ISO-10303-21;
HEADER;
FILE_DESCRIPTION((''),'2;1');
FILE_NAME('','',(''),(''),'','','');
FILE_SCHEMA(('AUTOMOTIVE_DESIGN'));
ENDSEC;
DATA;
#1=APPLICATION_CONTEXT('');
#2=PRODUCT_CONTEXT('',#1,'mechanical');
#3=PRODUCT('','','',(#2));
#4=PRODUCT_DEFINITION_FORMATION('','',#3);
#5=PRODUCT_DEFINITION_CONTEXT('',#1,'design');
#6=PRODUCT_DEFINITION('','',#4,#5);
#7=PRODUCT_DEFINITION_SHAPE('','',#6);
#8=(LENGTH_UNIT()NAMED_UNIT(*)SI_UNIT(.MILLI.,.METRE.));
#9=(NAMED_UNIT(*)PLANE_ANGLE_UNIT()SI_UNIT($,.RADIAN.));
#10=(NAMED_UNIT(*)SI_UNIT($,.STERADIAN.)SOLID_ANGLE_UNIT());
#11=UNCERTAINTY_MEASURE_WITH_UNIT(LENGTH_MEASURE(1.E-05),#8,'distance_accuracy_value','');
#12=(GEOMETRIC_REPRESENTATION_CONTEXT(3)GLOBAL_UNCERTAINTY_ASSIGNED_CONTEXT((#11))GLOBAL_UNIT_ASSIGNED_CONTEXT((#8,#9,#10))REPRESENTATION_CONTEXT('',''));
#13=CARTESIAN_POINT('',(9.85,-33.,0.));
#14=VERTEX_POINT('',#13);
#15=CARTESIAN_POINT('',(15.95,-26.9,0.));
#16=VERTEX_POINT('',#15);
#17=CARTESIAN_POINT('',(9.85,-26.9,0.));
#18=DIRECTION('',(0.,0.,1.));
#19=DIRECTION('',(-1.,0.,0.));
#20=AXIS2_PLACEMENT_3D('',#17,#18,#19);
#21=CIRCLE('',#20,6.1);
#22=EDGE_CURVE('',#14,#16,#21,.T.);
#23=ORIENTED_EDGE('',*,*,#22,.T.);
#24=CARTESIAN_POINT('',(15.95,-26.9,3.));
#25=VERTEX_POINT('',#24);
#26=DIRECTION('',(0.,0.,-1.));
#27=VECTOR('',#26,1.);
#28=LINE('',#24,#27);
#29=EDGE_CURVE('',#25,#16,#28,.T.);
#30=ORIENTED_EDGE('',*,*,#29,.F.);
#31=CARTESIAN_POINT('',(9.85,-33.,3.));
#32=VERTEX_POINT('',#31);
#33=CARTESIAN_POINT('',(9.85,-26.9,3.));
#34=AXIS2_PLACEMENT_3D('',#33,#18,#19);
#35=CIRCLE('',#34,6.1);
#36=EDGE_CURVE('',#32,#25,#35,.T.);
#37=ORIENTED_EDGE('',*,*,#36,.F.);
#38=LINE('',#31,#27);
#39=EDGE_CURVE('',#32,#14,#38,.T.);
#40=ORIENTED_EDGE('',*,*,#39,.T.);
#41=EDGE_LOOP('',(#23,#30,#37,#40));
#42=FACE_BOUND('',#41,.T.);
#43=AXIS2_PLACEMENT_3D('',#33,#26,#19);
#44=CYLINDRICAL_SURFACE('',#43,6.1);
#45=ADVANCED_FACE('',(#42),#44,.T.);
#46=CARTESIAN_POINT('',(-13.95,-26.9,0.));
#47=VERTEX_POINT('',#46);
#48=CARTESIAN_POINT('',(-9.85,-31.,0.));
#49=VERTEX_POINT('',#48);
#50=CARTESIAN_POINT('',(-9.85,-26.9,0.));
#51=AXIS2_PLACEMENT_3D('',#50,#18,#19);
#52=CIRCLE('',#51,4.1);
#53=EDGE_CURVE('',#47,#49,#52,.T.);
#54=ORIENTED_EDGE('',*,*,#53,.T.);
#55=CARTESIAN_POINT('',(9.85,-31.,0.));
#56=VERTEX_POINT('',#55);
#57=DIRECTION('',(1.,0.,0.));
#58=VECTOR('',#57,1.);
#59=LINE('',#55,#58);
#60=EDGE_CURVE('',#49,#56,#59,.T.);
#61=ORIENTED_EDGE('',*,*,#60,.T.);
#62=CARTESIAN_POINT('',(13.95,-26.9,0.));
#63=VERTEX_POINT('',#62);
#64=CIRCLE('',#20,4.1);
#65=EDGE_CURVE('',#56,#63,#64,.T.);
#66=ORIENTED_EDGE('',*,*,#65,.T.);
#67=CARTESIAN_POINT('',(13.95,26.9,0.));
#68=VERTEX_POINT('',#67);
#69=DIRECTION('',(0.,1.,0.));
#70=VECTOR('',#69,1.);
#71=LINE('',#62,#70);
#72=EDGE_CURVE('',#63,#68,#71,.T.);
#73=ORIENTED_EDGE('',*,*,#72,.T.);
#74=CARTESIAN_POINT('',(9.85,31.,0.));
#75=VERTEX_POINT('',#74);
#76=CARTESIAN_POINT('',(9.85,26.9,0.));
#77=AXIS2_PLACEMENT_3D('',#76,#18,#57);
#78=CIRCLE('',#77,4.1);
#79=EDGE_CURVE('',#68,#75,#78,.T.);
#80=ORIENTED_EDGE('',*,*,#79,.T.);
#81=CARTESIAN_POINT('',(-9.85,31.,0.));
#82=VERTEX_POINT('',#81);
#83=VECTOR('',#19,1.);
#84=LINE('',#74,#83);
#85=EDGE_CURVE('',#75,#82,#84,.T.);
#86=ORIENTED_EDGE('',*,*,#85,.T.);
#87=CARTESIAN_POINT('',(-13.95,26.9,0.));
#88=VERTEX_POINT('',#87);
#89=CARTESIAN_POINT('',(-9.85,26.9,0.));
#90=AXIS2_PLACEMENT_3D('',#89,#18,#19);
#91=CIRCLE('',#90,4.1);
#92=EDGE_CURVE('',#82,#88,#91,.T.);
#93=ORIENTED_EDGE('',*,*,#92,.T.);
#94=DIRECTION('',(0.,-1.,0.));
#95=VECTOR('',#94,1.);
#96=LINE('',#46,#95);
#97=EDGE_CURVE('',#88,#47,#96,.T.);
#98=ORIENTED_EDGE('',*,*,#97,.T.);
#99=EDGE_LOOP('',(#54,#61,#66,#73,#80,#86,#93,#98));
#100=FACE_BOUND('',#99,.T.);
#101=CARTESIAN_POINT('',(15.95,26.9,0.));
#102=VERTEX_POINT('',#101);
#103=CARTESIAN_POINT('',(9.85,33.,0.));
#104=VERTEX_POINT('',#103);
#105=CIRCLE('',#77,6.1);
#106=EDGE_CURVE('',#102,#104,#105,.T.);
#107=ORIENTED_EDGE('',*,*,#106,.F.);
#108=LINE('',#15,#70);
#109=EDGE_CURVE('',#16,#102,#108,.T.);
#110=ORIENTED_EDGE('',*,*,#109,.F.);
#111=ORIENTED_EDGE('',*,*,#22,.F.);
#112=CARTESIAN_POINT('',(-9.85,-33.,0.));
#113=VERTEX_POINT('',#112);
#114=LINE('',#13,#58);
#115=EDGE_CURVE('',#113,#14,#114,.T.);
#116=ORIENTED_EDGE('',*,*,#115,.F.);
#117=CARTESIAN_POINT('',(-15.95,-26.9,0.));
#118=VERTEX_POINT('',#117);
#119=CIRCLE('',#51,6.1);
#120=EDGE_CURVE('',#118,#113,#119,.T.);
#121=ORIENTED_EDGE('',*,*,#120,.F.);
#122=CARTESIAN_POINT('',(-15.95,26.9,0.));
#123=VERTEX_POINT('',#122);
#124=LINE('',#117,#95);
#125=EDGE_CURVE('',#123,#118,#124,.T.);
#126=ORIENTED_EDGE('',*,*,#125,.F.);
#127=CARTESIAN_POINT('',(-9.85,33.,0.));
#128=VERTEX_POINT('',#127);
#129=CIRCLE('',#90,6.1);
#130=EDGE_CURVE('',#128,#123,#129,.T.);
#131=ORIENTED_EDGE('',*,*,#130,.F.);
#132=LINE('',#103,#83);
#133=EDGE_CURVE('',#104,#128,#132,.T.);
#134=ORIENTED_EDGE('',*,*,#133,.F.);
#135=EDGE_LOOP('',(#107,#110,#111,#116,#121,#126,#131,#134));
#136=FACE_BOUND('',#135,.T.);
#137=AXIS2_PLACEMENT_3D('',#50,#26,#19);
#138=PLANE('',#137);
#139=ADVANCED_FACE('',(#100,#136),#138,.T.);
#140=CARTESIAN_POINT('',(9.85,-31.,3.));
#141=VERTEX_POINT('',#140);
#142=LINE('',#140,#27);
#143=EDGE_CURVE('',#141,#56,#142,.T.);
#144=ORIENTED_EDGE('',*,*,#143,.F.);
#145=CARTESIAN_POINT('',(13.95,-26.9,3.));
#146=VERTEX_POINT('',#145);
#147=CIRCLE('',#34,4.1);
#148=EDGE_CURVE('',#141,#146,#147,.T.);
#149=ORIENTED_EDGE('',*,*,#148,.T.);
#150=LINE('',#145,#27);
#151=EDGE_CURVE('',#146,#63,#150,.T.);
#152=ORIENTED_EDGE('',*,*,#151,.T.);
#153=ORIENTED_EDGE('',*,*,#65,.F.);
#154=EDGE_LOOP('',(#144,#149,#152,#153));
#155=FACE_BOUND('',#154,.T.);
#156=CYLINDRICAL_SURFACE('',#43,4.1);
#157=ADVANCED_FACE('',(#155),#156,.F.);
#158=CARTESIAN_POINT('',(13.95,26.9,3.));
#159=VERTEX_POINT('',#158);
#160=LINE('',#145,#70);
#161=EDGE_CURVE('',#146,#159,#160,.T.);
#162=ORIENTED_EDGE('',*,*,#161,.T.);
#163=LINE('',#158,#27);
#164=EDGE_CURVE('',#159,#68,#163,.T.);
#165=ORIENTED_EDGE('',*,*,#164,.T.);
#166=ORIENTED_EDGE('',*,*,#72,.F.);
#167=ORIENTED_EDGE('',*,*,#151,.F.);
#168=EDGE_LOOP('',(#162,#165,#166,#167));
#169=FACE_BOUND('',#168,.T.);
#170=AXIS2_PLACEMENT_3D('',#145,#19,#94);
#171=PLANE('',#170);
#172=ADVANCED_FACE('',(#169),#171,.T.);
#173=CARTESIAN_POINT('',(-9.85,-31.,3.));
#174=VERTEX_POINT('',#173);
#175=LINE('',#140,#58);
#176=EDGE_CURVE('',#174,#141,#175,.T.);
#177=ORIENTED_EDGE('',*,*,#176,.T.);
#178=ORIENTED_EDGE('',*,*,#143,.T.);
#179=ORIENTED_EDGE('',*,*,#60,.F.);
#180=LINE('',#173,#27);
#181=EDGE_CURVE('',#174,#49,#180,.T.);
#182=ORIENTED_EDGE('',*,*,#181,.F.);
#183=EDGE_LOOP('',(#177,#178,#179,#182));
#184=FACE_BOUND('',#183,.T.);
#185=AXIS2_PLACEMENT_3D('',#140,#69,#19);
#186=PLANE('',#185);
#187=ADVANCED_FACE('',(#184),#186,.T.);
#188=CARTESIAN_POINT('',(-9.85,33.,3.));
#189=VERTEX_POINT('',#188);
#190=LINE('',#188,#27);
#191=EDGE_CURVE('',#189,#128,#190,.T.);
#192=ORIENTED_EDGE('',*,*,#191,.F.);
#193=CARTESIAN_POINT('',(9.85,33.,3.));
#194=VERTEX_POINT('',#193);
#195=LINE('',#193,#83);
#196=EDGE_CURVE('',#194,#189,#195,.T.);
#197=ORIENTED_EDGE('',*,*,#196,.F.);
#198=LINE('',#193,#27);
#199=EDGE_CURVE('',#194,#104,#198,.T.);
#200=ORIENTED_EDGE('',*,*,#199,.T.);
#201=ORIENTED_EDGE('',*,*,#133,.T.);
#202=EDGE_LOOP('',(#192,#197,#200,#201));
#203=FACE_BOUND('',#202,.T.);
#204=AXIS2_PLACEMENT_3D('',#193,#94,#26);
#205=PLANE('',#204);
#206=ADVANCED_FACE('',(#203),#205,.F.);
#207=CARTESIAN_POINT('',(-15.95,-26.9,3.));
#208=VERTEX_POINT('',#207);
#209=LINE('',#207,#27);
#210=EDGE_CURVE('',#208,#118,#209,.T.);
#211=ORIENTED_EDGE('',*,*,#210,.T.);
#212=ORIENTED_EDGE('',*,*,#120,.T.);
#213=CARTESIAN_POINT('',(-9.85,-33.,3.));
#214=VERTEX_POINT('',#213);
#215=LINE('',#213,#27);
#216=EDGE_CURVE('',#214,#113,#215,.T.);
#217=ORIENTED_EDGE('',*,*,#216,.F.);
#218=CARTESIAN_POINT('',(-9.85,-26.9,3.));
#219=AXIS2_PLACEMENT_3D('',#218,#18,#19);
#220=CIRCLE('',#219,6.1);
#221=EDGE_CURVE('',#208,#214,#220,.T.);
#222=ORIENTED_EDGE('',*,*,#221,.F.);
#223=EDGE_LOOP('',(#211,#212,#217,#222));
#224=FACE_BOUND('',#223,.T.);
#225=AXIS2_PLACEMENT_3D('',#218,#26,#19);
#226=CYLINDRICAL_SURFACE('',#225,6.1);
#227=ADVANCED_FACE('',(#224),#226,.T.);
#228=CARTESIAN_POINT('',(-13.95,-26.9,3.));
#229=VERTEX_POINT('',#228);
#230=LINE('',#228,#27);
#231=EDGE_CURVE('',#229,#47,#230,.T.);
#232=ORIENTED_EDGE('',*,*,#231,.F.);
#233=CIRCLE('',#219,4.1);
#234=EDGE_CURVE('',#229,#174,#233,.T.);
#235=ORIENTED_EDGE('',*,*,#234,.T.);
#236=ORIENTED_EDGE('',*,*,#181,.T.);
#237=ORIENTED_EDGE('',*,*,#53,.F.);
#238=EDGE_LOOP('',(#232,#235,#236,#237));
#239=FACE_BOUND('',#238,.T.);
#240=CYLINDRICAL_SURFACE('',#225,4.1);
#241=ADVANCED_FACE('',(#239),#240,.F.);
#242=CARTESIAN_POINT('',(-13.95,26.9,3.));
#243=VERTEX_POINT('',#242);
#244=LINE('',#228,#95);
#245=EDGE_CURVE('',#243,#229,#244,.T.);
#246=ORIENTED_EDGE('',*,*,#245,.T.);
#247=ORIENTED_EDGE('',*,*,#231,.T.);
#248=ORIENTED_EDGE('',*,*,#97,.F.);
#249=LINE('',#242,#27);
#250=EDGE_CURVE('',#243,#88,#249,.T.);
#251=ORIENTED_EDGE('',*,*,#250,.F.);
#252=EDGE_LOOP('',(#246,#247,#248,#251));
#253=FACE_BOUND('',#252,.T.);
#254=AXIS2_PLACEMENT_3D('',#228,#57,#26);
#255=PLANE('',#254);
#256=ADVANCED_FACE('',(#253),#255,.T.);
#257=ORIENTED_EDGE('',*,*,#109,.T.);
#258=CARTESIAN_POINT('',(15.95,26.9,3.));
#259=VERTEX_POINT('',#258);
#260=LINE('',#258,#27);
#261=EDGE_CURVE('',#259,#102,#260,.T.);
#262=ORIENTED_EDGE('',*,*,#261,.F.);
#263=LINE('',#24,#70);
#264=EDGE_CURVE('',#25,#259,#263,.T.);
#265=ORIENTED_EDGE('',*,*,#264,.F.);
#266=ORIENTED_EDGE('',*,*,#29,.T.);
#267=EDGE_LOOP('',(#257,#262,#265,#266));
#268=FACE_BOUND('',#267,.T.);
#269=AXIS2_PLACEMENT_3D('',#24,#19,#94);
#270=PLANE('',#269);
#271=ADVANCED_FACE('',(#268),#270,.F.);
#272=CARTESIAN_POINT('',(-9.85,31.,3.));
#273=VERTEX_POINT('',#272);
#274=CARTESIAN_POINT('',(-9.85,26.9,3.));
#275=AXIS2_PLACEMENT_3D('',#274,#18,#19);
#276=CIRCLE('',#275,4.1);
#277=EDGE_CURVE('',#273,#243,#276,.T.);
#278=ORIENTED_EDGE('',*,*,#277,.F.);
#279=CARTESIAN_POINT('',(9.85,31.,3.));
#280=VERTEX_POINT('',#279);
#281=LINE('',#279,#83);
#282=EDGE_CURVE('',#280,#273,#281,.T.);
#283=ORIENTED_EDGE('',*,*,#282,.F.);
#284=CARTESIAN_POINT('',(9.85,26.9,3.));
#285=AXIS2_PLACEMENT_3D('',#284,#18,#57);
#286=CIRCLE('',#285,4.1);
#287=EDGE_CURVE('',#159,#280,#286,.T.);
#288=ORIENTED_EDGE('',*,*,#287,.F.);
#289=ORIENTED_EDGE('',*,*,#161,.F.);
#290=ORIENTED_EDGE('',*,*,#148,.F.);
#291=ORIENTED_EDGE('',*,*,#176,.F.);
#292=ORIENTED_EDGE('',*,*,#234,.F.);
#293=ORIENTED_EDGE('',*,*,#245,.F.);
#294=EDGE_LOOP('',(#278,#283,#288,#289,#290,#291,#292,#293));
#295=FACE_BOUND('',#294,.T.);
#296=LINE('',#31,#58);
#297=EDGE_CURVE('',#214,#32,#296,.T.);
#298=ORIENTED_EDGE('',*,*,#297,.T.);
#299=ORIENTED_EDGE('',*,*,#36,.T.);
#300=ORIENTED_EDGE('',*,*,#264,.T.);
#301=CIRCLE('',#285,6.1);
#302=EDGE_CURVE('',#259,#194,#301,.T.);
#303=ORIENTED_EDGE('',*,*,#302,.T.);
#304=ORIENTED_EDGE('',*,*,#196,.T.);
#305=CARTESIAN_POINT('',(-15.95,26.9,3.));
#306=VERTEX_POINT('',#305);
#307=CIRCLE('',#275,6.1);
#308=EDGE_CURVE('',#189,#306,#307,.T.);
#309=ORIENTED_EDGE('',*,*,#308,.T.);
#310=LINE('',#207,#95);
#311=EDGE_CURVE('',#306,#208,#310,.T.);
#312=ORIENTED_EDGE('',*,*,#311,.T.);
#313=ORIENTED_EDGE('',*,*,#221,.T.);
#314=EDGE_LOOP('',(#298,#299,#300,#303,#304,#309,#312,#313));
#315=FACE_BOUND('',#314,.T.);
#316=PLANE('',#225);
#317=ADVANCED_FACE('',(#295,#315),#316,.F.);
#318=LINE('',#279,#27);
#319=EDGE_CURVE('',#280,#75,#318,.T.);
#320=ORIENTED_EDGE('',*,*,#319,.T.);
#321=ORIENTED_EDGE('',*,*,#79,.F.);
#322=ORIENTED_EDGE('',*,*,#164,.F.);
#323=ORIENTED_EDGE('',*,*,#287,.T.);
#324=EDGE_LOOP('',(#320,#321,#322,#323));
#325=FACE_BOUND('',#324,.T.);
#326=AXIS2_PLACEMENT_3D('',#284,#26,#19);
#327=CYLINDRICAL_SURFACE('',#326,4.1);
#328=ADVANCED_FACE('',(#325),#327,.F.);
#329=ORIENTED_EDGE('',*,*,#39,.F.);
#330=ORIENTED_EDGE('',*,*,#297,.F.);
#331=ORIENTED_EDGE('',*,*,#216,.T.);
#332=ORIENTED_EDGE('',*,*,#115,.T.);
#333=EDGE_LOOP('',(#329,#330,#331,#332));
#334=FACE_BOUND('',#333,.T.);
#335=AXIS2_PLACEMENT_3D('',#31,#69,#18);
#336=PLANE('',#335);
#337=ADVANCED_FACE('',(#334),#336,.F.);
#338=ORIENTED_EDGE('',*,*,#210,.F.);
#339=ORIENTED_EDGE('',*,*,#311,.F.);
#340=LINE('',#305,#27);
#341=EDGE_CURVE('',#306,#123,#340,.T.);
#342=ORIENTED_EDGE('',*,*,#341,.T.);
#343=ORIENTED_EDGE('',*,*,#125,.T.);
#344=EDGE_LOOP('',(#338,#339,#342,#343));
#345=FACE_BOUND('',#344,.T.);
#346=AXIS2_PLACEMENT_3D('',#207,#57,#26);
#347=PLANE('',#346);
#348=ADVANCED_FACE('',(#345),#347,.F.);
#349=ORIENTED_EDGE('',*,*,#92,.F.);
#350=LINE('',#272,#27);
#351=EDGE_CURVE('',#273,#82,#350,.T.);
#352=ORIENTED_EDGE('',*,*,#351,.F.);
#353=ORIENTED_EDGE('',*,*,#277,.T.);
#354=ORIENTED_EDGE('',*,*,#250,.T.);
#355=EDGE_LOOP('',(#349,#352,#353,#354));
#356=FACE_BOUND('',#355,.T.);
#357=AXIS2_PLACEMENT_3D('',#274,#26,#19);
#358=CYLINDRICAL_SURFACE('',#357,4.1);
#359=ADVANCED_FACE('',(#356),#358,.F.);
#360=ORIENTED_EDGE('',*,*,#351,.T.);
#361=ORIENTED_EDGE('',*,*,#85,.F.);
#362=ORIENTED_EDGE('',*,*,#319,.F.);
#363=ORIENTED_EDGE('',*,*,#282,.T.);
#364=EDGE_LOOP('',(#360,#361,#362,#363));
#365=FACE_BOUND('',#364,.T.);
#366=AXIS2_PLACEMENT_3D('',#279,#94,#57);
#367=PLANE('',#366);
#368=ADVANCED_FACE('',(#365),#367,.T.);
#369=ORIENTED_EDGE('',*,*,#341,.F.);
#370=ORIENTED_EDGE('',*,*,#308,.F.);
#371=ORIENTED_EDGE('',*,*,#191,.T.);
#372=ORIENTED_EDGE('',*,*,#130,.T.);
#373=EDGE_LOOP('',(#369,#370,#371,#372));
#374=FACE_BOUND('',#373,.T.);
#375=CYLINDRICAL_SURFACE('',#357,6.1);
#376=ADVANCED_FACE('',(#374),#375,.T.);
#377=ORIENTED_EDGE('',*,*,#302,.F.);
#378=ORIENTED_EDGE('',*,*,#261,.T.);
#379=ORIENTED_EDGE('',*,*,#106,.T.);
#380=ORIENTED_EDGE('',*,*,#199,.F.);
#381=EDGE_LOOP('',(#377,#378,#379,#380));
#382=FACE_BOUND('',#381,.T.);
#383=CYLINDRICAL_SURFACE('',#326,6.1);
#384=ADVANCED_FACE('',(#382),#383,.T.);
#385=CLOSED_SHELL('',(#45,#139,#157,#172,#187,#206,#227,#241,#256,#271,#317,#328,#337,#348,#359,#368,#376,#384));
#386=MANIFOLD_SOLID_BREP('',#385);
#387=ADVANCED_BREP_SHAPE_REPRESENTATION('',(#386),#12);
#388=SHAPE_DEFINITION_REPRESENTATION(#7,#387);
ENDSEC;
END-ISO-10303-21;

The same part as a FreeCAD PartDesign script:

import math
import FreeCAD as App
import Part
import Sketcher
Q = App.Units.Quantity

doc = App.newDocument("Part")
params = doc.addObject("Spreadsheet::Sheet", "Params")
for row, (alias, value) in enumerate([
    ("sketch1_radius", "6.1 mm"),
    ("sketch1_radius2", "4.1 mm"),
    ("sketch1_width", "19.7 mm"),
    ("sketch1_height", "53.8 mm"),
    ("pad1_length", "3 mm"),
], start=1):
    params.set(f"A{row}", alias)
    params.set(f"B{row}", "=" + value)
    params.setAlias(f"B{row}", alias)

body = doc.addObject("PartDesign::Body", "Body")

sketch1 = body.newObject("Sketcher::SketchObject", "Sketch")
sketch1.AttachmentSupport = (doc.getObject("XY_Plane"), [""])
sketch1.MapMode = "FlatFace"
sketch1.addGeometry([
    Part.LineSegment(App.Vector(-15.9, 26.9, 0), App.Vector(-15.9, -26.9, 0)),
    Part.ArcOfCircle(Part.Circle(App.Vector(-9.8, -26.9, 0), App.Vector(0, 0, 1), 6.1), math.radians(-180), math.radians(-90)),
    Part.LineSegment(App.Vector(-9.8, -33, 0), App.Vector(9.8, -33, 0)),
    Part.ArcOfCircle(Part.Circle(App.Vector(9.8, -26.9, 0), App.Vector(0, 0, 1), 6.1), math.radians(-90), math.radians(0)),
    Part.LineSegment(App.Vector(15.9, -26.9, 0), App.Vector(15.9, 26.9, 0)),
    Part.ArcOfCircle(Part.Circle(App.Vector(9.8, 26.9, 0), App.Vector(0, 0, 1), 6.1), math.radians(0), math.radians(90)),
    Part.LineSegment(App.Vector(9.8, 33, 0), App.Vector(-9.8, 33, 0)),
    Part.ArcOfCircle(Part.Circle(App.Vector(-9.8, 26.9, 0), App.Vector(0, 0, 1), 6.1), math.radians(90), math.radians(180)),
    Part.LineSegment(App.Vector(-13.9, -26.9, 0), App.Vector(-13.9, 26.9, 0)),
    Part.ArcOfCircle(Part.Circle(App.Vector(-9.8, 26.9, 0), App.Vector(0, 0, 1), 4.1), math.radians(90), math.radians(180)),
    Part.LineSegment(App.Vector(-9.8, 31, 0), App.Vector(9.8, 31, 0)),
    Part.ArcOfCircle(Part.Circle(App.Vector(9.8, 26.9, 0), App.Vector(0, 0, 1), 4.1), math.radians(0), math.radians(90)),
    Part.LineSegment(App.Vector(13.9, 26.9, 0), App.Vector(13.9, -26.9, 0)),
    Part.ArcOfCircle(Part.Circle(App.Vector(9.8, -26.9, 0), App.Vector(0, 0, 1), 4.1), math.radians(-90), math.radians(0)),
    Part.LineSegment(App.Vector(9.8, -31, 0), App.Vector(-9.8, -31, 0)),
    Part.ArcOfCircle(Part.Circle(App.Vector(-9.8, -26.9, 0), App.Vector(0, 0, 1), 4.1), math.radians(180), math.radians(270)),
], False)
sketch1.addConstraint([
    Sketcher.Constraint("Tangent", 0, 2, 1, 1),
    Sketcher.Constraint("Tangent", 1, 2, 2, 1),
    Sketcher.Constraint("Tangent", 2, 2, 3, 1),
    Sketcher.Constraint("Tangent", 3, 2, 4, 1),
    Sketcher.Constraint("Tangent", 4, 2, 5, 1),
    Sketcher.Constraint("Tangent", 5, 2, 6, 1),
    Sketcher.Constraint("Tangent", 6, 2, 7, 1),
    Sketcher.Constraint("Tangent", 7, 2, 0, 1),
    Sketcher.Constraint("Tangent", 8, 2, 9, 2),
    Sketcher.Constraint("Tangent", 9, 1, 10, 1),
    Sketcher.Constraint("Tangent", 10, 2, 11, 2),
    Sketcher.Constraint("Tangent", 11, 1, 12, 1),
    Sketcher.Constraint("Tangent", 12, 2, 13, 2),
    Sketcher.Constraint("Tangent", 13, 1, 14, 1),
    Sketcher.Constraint("Tangent", 14, 2, 15, 2),
    Sketcher.Constraint("Tangent", 15, 1, 8, 1),
    Sketcher.Constraint("Vertical", 0),
    Sketcher.Constraint("Horizontal", 2),
    Sketcher.Constraint("Vertical", 4),
    Sketcher.Constraint("Horizontal", 6),
    Sketcher.Constraint("Vertical", 8),
    Sketcher.Constraint("Horizontal", 10),
    Sketcher.Constraint("Vertical", 12),
    Sketcher.Constraint("Horizontal", 14),
    Sketcher.Constraint("Coincident", 9, 3, 7, 3),
    Sketcher.Constraint("Coincident", 11, 3, 5, 3),
    Sketcher.Constraint("Coincident", 13, 3, 3, 3),
    Sketcher.Constraint("Equal", 1, 3),
    Sketcher.Constraint("Equal", 3, 5),
    Sketcher.Constraint("Equal", 5, 7),
    Sketcher.Constraint("Equal", 13, 15),
    Sketcher.Constraint("Symmetric", 1, 3, 5, 3, -1, 1),
    Sketcher.Constraint("Radius", 1, Q("6.1 mm")),
    Sketcher.Constraint("Radius", 9, Q("4.1 mm")),
    Sketcher.Constraint("DistanceX", 2, 1, 2, 2, Q("19.7 mm")),
    Sketcher.Constraint("DistanceY", 0, 2, 0, 1, Q("53.8 mm")),
])
sketch1.setExpression("Constraints[32]", "Params.sketch1_radius")
sketch1.setExpression("Constraints[33]", "Params.sketch1_radius2")
sketch1.setExpression("Constraints[34]", "Params.sketch1_width")
sketch1.setExpression("Constraints[35]", "Params.sketch1_height")
pad1 = body.newObject("PartDesign::Pad", "Pad")
pad1.Profile = sketch1
pad1.setExpression("Length", "Params.pad1_length")

doc.recompute()
